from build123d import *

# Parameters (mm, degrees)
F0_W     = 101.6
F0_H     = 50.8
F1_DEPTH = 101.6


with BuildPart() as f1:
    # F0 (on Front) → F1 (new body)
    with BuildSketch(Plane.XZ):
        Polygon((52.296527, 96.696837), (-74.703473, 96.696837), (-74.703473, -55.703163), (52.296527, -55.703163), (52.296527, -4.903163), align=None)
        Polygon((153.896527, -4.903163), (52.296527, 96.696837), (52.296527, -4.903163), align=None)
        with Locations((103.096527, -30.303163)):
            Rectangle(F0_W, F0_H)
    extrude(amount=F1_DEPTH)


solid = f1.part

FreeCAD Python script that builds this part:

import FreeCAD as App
import Part
import Sketcher

V = App.Vector
Q = App.Units.Quantity


def add_polygon(sketch, points):
    """Adds a closed chain of lines whose ends are joined by coincident constraints."""
    first, n = sketch.GeometryCount, len(points)
    for a, b in zip(points, points[1:] + points[:1]):
        sketch.addGeometry(Part.LineSegment(App.Vector(*a, 0), App.Vector(*b, 0)), False)
    for i in range(n):
        sketch.addConstraint(Sketcher.Constraint("Coincident", first + i, 2, first + (i + 1) % n, 1))

doc = App.newDocument("Part")
params = doc.addObject("Spreadsheet::Sheet", "Params")
for row, (alias, value) in enumerate([
    ("sketch1_width", "5 in"),
    ("sketch1_width2", "9 in"),
    ("sketch1_height", "6 in"),
    ("sketch1_height2", "2 in"),
    ("pad1_length", "4 in"),
], start=1):
    params.set(f"A{row}", alias)
    params.set(f"B{row}", "=" + value)
    params.setAlias(f"B{row}", alias)

body = doc.addObject("PartDesign::Body", "Body")

# Sketch on XZ plane
sketch1 = doc.addObject("Sketcher::SketchObject", "Sketch")
body.addObject(sketch1)
sketch1.AttachmentSupport = (doc.XZ_Plane, [""])
sketch1.MapMode = "FlatFace"
add_polygon(sketch1, [(52.296527, 96.696837), (-74.703473, 96.696837), (-74.703473, -55.703163), (153.896527, -55.703163), (153.896527, -4.903163)])  # lines 0-4
sketch1.addConstraint([
    Sketcher.Constraint("Horizontal", 0),
    Sketcher.Constraint("Vertical", 1),
    Sketcher.Constraint("Horizontal", 2),
    Sketcher.Constraint("Vertical", 3),
    Sketcher.Constraint("DistanceX", 0, 2, 0, 1, Q("5 in")),
    Sketcher.Constraint("DistanceX", 2, 1, 2, 2, Q("9 in")),
    Sketcher.Constraint("DistanceY", 1, 2, 1, 1, Q("6 in")),
    Sketcher.Constraint("DistanceY", 3, 1, 3, 2, Q("2 in")),
    Sketcher.Constraint("DistanceX", 0, 2, -1, 1, Q("74.703473 mm")),
    Sketcher.Constraint("DistanceY", -1, 1, 0, 2, Q("96.696837 mm")),
])
sketch1.setExpression("Constraints[9]", "Params.sketch1_width")
sketch1.setExpression("Constraints[10]", "Params.sketch1_width2")
sketch1.setExpression("Constraints[11]", "Params.sketch1_height")
sketch1.setExpression("Constraints[12]", "Params.sketch1_height2")
pad1 = doc.addObject("PartDesign::Pad", "Pad")
body.addObject(pad1)
pad1.Profile = sketch1
pad1.setExpression("Length", "Params.pad1_length")

doc.recompute()
